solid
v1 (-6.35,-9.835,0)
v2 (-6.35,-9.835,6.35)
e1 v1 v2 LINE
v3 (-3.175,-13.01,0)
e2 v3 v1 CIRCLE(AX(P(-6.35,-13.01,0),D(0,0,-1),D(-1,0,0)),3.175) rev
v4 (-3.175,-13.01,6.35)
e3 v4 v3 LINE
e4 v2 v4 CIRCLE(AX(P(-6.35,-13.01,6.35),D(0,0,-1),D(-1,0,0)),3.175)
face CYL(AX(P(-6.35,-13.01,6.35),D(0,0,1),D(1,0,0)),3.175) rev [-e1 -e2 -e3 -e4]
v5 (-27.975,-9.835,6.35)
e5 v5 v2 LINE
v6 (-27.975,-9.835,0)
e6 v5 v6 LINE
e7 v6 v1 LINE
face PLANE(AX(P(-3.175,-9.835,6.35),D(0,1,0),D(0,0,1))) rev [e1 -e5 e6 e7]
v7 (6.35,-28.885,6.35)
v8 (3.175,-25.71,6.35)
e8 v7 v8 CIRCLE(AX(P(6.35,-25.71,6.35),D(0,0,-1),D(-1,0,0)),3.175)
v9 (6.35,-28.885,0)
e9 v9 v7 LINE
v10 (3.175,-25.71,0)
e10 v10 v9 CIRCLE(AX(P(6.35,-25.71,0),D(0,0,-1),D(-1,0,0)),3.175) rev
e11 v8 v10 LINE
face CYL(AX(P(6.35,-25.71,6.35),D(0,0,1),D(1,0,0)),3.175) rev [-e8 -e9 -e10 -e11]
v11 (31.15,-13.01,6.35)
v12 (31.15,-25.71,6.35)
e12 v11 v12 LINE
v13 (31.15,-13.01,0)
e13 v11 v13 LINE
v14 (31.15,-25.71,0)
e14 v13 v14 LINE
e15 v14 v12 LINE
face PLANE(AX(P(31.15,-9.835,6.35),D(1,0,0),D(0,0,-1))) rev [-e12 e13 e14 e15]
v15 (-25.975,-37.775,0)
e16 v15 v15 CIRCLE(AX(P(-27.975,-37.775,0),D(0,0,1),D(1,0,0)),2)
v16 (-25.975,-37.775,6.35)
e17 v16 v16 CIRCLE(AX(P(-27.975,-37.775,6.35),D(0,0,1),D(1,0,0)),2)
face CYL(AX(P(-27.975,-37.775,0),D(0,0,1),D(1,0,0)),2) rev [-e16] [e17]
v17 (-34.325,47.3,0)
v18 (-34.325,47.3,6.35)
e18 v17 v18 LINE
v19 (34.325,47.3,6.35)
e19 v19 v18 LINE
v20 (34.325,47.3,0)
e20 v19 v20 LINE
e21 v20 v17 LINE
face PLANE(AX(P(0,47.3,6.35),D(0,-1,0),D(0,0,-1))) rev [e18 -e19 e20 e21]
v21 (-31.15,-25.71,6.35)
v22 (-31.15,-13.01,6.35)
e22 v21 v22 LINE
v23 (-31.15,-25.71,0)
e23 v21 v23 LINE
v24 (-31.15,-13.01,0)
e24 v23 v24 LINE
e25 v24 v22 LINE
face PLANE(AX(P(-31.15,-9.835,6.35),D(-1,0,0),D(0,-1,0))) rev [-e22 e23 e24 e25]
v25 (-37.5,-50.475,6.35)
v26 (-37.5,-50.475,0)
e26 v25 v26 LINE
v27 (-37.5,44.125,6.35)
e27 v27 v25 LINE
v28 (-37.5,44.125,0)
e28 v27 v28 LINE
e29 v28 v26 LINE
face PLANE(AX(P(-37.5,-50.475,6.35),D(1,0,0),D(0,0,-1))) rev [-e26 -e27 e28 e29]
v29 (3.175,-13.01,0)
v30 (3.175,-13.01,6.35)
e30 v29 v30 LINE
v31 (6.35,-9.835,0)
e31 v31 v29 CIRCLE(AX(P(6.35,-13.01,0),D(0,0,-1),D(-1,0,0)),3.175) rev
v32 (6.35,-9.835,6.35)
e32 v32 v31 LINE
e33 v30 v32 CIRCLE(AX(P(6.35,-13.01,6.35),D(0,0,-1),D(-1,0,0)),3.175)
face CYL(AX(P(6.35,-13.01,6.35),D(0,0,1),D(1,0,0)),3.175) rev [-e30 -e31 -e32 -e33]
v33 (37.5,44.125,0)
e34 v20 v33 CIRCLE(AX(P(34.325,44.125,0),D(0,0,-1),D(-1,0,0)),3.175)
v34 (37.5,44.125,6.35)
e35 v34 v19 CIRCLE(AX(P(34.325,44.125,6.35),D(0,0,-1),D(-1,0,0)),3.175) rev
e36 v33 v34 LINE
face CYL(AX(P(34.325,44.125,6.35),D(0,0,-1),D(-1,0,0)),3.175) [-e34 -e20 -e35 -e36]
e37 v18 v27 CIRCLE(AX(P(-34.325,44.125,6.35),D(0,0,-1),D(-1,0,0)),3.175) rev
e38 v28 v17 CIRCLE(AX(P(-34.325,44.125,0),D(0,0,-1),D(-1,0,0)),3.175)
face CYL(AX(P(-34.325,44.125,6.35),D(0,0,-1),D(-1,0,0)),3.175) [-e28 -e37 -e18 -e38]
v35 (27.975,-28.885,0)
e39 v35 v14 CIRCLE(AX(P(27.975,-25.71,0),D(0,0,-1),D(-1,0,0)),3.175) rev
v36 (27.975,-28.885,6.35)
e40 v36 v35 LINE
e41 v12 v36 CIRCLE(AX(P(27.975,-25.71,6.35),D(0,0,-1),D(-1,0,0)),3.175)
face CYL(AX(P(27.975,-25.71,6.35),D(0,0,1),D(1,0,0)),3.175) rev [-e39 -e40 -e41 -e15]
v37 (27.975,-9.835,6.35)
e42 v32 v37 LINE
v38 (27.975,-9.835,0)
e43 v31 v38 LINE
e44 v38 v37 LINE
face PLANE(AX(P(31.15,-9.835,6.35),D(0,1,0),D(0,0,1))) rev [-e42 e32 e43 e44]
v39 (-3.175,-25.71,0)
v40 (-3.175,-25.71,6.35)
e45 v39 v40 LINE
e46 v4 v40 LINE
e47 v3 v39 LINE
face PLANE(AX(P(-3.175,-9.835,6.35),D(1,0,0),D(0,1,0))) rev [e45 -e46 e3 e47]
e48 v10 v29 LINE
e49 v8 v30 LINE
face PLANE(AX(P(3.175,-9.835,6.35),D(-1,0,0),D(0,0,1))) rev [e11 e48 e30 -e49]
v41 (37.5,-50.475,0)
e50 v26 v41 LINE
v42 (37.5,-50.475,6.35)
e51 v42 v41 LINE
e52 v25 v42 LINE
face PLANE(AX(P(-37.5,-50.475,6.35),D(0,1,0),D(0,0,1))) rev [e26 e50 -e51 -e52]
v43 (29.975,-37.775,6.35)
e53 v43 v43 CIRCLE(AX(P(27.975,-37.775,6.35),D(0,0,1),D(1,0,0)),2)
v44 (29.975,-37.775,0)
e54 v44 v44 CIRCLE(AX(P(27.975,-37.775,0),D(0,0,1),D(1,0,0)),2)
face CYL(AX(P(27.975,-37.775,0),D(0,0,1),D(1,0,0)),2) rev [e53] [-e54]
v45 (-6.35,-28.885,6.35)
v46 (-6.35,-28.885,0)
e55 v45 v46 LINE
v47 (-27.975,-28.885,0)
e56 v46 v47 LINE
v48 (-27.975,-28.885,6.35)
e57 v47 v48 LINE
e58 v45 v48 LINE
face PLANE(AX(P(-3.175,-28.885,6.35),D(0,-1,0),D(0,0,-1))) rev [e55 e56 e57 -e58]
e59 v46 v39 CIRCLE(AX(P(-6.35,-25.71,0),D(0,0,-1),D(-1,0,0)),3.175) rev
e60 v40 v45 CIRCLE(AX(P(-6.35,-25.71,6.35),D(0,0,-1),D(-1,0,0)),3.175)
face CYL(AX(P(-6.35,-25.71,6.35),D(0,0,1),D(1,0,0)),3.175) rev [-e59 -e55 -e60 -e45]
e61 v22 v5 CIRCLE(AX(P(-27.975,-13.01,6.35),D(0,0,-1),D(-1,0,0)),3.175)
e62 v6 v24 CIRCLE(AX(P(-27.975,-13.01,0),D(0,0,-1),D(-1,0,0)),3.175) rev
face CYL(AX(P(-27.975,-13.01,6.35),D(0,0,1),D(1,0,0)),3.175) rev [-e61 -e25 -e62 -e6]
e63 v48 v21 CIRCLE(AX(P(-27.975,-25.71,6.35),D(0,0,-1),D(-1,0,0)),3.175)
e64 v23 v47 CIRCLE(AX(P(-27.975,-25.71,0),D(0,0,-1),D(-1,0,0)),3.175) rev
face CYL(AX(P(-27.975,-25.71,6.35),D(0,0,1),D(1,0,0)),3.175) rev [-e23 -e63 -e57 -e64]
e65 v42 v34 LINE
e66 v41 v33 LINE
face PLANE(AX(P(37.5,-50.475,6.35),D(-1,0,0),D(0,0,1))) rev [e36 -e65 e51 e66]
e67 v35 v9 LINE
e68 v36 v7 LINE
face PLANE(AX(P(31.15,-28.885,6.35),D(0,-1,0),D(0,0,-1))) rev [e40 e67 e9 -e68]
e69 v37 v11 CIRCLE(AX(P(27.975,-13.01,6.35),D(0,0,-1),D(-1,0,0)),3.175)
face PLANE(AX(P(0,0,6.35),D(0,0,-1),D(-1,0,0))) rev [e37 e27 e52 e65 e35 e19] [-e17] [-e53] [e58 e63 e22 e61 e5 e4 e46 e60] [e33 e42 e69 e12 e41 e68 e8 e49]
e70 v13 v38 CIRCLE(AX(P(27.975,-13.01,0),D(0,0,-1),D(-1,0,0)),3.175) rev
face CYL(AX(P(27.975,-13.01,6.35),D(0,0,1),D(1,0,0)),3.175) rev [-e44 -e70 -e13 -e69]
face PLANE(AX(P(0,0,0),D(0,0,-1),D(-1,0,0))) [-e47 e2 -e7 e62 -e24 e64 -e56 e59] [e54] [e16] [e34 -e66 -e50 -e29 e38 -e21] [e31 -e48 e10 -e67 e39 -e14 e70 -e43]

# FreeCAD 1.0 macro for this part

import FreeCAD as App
import Part
import Sketcher
from FreeCAD import Vector
Q = App.Units.Quantity


def edges_at(feature, points):
    """Names of the edges that pass closest to the given points."""
    edges = feature.Shape.Edges
    near = lambda p: min(range(len(edges)), key=lambda i: edges[i].distToShape(Part.Vertex(*p))[0])
    return sorted({f"Edge{near(p) + 1}" for p in points})


def add_polygon(sketch, points):
    """Adds a closed chain of lines whose ends are joined by coincident constraints."""
    first, n = sketch.GeometryCount, len(points)
    for a, b in zip(points, points[1:] + points[:1]):
        sketch.addGeometry(Part.LineSegment(App.Vector(*a, 0), App.Vector(*b, 0)), False)
    for i in range(n):
        sketch.addConstraint(Sketcher.Constraint("Coincident", first + i, 2, first + (i + 1) % n, 1))

doc = App.newDocument("Part")
body = doc.addObject("PartDesign::Body", "Body")

# Sketch on XY plane
sketch1 = doc.addObject("Sketcher::SketchObject", "Sketch")
body.addObject(sketch1)
sketch1.AttachmentSupport = (doc.XY_Plane, [""])
sketch1.MapMode = "FlatFace"
add_polygon(sketch1, [(-37.5, 50.475), (-37.5, -50.475), (37.5, -50.475), (37.5, 50.475)])  # lines 0-3
sketch1.addConstraint([
    Sketcher.Constraint("Vertical", 0),
    Sketcher.Constraint("Horizontal", 1),
    Sketcher.Constraint("Vertical", 2),
    Sketcher.Constraint("Horizontal", 3),
    Sketcher.Constraint("Symmetric", 0, 2, 2, 2, -1, 1),
    Sketcher.Constraint("DistanceX", 1, 1, 1, 2, 75.0),
    Sketcher.Constraint("DistanceY", 0, 2, 0, 1, 100.95),
])
pad1 = doc.addObject("PartDesign::Pad", "Pad")
body.addObject(pad1)
pad1.Profile = sketch1
pad1.Length = Q("0.25 in")

# Sketch on XY plane
sketch2 = doc.addObject("Sketcher::SketchObject", "Sketch001")
body.addObject(sketch2)
sketch2.AttachmentSupport = (doc.XY_Plane, [""])
sketch2.MapMode = "FlatFace"
sketch2.AttachmentOffset = App.Placement(Vector(0, 0, 0.25 * 25.4), App.Rotation())
sketch2.addGeometry([
    Part.Circle(Vector(-27.975, -37.775, 0), Vector(0, 0, 1), 2),
    Part.Circle(Vector(27.975, -37.775, 0), Vector(0, 0, 1), 2),
], False)
sketch2.addConstraint([
    Sketcher.Constraint("Equal", 0, 1),
    Sketcher.Constraint("Symmetric", 0, 3, 1, 3, -2),
    Sketcher.Constraint("Diameter", 0, 4.0),
    Sketcher.Constraint("DistanceX", 0, 3, -1, 1, 27.975),
    Sketcher.Constraint("DistanceY", 0, 3, -1, 1, 37.775),
])
pocket1 = doc.addObject("PartDesign::Pocket", "Pocket")
body.addObject(pocket1)
pocket1.Profile = sketch2
pocket1.Length = Q("0.25 in")

# Sketch on XY plane
sketch3 = doc.addObject("Sketcher::SketchObject", "Sketch002")
body.addObject(sketch3)
sketch3.AttachmentSupport = (doc.XY_Plane, [""])
sketch3.MapMode = "FlatFace"
add_polygon(sketch3, [(37.5, 50.475), (37.5, 47.3), (-37.5, 47.3), (-37.5, 50.475)])  # lines 0-3
sketch3.addConstraint([
    Sketcher.Constraint("Vertical", 0),
    Sketcher.Constraint("Horizontal", 1),
    Sketcher.Constraint("Vertical", 2),
    Sketcher.Constraint("Horizontal", 3),
    Sketcher.Constraint("DistanceY", 0, 2, 0, 1, Q("0.125 in")),
    Sketcher.Constraint("DistanceX", 1, 2, 1, 1, 75.0),
    Sketcher.Constraint("DistanceX", -1, 1, 0, 2, 37.5),
    Sketcher.Constraint("DistanceY", -1, 1, 0, 2, 47.3),
])
pocket2 = doc.addObject("PartDesign::Pocket", "Pocket001")
body.addObject(pocket2)
pocket2.Profile = sketch3
pocket2.Type = "ThroughAll"
pocket2.Reversed = True
doc.recompute()

fillet = doc.addObject("PartDesign::Fillet", "Fillet")
body.addObject(fillet)
fillet.Base = (pocket2, edges_at(pocket2, [(37.5, 47.3, 3.175), (-37.5, 47.3, 3.175)]))
fillet.Radius = Q("0.125 in")

# Sketch on XY plane
sketch4 = doc.addObject("Sketcher::SketchObject", "Sketch003")
body.addObject(sketch4)
sketch4.AttachmentSupport = (doc.XY_Plane, [""])
sketch4.MapMode = "FlatFace"
add_polygon(sketch4, [(31.15, -9.835), (31.15, -28.885), (3.175, -28.885), (3.175, -9.835)])  # lines 0-3
add_polygon(sketch4, [(-3.175, -9.835), (-3.175, -28.885), (-31.15, -28.885), (-31.15, -9.835)])  # lines 4-7
sketch4.addConstraint([
    Sketcher.Constraint("Vertical", 0),
    Sketcher.Constraint("Horizontal", 1),
    Sketcher.Constraint("Vertical", 2),
    Sketcher.Constraint("Horizontal", 3),
    Sketcher.Constraint("Vertical", 4),
    Sketcher.Constraint("Horizontal", 5),
    Sketcher.Constraint("Vertical", 6),
    Sketcher.Constraint("Horizontal", 7),
    Sketcher.Constraint("Symmetric", 1, 2, 4, 2, -2),
    Sketcher.Constraint("Symmetric", 3, 2, 6, 2, -2),
    Sketcher.Constraint("DistanceY", 0, 2, 0, 1, Q("0.75 in")),
    Sketcher.Constraint("DistanceX", 4, 2, 1, 2, Q("0.25 in")),
    Sketcher.Constraint("DistanceX", 1, 2, 1, 1, 27.975),
    Sketcher.Constraint("DistanceY", 0, 2, -1, 1, 28.885),
])
pocket3 = doc.addObject("PartDesign::Pocket", "Pocket002")
body.addObject(pocket3)
pocket3.Profile = sketch4
pocket3.Type = "ThroughAll"
pocket3.Reversed = True
doc.recompute()

fillet2 = doc.addObject("PartDesign::Fillet", "Fillet001")
body.addObject(fillet2)
fillet2.Base = (pocket3, edges_at(pocket3, [
    (31.15, -28.885, 3.175),
    (31.15, -9.835, 3.175),
    (3.175, -9.835, 3.175),
    (3.175, -28.885, 3.175),
    (-3.175, -28.885, 3.175),
    (-3.175, -9.835, 3.175),
    (-31.15, -9.835, 3.175),
    (-31.15, -28.885, 3.175),
]))
fillet2.Radius = Q("0.125 in")

doc.recompute()
